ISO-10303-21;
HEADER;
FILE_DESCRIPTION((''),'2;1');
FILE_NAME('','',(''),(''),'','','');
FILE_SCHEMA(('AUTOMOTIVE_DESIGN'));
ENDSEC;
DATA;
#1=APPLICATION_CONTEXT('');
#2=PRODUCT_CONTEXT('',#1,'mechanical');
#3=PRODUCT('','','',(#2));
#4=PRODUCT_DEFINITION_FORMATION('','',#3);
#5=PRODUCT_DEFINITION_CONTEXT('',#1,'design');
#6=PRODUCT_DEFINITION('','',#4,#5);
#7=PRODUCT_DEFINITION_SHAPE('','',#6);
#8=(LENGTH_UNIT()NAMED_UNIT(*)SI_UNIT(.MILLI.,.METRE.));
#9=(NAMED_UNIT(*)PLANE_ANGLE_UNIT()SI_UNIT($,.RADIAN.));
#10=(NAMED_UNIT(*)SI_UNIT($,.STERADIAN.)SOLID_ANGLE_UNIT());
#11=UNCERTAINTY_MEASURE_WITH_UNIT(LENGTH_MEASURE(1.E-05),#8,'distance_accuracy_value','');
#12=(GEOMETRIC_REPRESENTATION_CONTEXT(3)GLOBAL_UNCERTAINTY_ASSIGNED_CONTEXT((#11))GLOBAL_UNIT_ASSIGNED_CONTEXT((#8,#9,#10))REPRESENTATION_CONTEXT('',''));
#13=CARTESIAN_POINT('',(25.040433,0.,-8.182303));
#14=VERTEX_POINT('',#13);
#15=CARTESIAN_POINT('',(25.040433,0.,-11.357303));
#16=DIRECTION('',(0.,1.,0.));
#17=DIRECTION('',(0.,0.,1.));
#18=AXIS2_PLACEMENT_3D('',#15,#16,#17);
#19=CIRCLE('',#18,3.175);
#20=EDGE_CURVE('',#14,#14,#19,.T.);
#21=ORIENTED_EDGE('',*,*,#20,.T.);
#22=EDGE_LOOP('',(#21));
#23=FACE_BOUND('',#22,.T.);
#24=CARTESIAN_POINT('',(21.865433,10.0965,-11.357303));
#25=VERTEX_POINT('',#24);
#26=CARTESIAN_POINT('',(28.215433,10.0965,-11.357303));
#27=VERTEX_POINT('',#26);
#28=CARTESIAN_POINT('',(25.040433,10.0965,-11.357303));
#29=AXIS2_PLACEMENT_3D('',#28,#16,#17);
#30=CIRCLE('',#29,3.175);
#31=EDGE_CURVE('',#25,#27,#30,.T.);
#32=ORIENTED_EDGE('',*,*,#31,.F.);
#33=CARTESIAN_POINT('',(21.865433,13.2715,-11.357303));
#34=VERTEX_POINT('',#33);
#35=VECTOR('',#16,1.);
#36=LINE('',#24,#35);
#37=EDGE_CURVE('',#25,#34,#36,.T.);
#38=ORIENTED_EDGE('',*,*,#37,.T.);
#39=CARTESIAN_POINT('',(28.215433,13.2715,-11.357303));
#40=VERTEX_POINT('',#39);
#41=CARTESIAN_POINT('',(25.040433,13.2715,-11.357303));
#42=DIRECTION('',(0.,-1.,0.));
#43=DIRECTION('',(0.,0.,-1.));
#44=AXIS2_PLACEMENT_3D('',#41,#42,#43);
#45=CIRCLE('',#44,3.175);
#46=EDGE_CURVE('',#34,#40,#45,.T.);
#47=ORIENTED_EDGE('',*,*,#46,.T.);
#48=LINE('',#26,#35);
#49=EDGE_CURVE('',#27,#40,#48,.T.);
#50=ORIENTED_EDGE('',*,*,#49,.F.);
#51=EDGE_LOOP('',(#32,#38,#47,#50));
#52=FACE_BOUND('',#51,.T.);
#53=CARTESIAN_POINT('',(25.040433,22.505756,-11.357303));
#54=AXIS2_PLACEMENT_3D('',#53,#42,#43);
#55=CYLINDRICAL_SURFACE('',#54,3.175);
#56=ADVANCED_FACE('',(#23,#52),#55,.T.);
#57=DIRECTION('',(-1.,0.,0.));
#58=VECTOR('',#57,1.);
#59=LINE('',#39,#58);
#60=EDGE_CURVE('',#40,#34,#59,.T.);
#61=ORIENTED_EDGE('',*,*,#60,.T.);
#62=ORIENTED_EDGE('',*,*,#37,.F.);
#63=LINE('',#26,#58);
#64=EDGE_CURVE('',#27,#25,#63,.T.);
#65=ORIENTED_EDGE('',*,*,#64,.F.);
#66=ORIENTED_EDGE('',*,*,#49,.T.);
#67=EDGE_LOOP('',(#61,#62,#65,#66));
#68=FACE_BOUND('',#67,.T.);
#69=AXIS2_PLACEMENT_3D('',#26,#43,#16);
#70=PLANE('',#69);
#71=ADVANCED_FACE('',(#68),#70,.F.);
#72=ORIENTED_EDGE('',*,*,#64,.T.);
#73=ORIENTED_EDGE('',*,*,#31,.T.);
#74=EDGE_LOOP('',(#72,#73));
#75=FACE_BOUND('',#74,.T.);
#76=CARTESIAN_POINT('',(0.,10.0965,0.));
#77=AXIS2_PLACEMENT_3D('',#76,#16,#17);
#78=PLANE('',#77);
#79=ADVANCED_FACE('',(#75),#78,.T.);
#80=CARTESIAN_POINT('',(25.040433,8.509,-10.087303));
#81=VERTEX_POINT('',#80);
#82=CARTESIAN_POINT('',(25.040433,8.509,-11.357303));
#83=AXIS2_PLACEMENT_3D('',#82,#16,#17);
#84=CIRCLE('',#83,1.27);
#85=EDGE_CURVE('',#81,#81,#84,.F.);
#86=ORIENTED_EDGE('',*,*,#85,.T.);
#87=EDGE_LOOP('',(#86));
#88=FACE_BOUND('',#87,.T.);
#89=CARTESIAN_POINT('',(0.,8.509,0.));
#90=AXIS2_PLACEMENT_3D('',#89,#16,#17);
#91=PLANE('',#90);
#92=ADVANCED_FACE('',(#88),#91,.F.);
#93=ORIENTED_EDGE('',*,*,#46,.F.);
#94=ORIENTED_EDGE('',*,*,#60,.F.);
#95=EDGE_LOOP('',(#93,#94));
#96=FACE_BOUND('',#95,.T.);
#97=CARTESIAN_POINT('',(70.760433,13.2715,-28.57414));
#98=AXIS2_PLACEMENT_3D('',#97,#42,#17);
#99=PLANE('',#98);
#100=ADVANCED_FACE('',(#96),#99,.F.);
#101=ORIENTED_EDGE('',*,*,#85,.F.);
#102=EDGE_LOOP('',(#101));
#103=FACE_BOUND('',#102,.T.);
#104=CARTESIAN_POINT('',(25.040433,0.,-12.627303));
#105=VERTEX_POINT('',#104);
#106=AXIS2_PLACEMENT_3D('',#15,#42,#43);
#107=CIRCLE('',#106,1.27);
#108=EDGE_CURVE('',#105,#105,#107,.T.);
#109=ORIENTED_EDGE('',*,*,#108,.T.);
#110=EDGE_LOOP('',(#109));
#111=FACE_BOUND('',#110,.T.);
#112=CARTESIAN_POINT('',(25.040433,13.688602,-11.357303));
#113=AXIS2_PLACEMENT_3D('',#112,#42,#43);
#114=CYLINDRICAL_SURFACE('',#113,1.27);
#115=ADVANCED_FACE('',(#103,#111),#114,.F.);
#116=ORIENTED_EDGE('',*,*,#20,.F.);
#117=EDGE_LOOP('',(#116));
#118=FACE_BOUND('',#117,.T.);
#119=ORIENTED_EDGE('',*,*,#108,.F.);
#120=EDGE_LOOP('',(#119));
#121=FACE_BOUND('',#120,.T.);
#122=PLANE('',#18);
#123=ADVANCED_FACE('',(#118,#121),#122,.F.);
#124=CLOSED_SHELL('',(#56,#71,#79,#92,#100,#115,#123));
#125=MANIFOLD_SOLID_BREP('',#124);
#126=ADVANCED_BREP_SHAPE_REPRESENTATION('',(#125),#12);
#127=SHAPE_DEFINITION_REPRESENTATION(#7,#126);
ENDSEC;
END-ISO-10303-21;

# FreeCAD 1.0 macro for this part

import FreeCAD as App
import Part
import Sketcher

V = App.Vector
Q = App.Units.Quantity


def add_polygon(sketch, points):
    """Adds a closed chain of lines whose ends are joined by coincident constraints."""
    first, n = sketch.GeometryCount, len(points)
    for a, b in zip(points, points[1:] + points[:1]):
        sketch.addGeometry(Part.LineSegment(App.Vector(*a, 0), App.Vector(*b, 0)), False)
    for i in range(n):
        sketch.addConstraint(Sketcher.Constraint("Coincident", first + i, 2, first + (i + 1) % n, 1))

doc = App.newDocument("Part")
body = doc.addObject("PartDesign::Body", "Body")

# Sketch on XZ plane
sketch1 = doc.addObject("Sketcher::SketchObject", "Sketch")
body.addObject(sketch1)
sketch1.AttachmentSupport = (doc.XZ_Plane, [""])
sketch1.MapMode = "FlatFace"
sketch1.addGeometry(Part.Circle(V(25, -11.4, 0), V(0, 0, 1), 3.2), False)
sketch1.addConstraint([
    Sketcher.Constraint("Diameter", 0, Q("0.25 in")),
    Sketcher.Constraint("DistanceX", -1, 1, 0, 3, Q("25.040433 mm")),
    Sketcher.Constraint("DistanceY", 0, 3, -1, 1, Q("11.357303 mm")),
])
pad1 = doc.addObject("PartDesign::Pad", "Pad")
body.addObject(pad1)
pad1.Profile = sketch1
pad1.Length = Q("0.5225 in")
pad1.Reversed = True

# Sketch on XZ plane
sketch2 = doc.addObject("Sketcher::SketchObject", "Sketch001")
body.addObject(sketch2)
sketch2.AttachmentSupport = (doc.XZ_Plane, [""])
sketch2.MapMode = "FlatFace"
sketch2.AttachmentOffset = App.Placement(V(0, 0, -0.5225 * 25.4), App.Rotation())
add_polygon(sketch2, [(21.9, -11.4), (21.9, -6.8), (28.2, -6.8), (28.2, -11.4)])  # lines 0-3
sketch2.addConstraint([
    Sketcher.Constraint("Vertical", 0),
    Sketcher.Constraint("Horizontal", 1),
    Sketcher.Constraint("Vertical", 2),
    Sketcher.Constraint("Horizontal", 3),
    Sketcher.Constraint("DistanceX", 1, 1, 1, 2, Q("0.25 in")),
    Sketcher.Constraint("DistanceY", 0, 1, 0, 2, Q("4.534298 mm")),
    Sketcher.Constraint("DistanceX", -1, 1, 0, 2, Q("21.865433 mm")),
    Sketcher.Constraint("DistanceY", 0, 2, -1, 1, Q("6.823006 mm")),
])
pocket1 = doc.addObject("PartDesign::Pocket", "Pocket")
body.addObject(pocket1)
pocket1.Profile = sketch2
pocket1.Length = Q("0.125 in")
pocket1.Reversed = True

# Sketch on XZ plane
sketch3 = doc.addObject("Sketcher::SketchObject", "Sketch002")
body.addObject(sketch3)
sketch3.AttachmentSupport = (doc.XZ_Plane, [""])
sketch3.MapMode = "FlatFace"
sketch3.addGeometry(Part.Circle(V(25, -11.4, 0), V(0, 0, 1), 1.3), False)
sketch3.addConstraint([
    Sketcher.Constraint("Diameter", 0, Q("0.1 in")),
    Sketcher.Constraint("DistanceX", -1, 1, 0, 3, Q("25.040433 mm")),
    Sketcher.Constraint("DistanceY", 0, 3, -1, 1, Q("11.357303 mm")),
])
pocket2 = doc.addObject("PartDesign::Pocket", "Pocket001")
body.addObject(pocket2)
pocket2.Profile = sketch3
pocket2.Length = Q("0.335 in")

doc.recompute()
